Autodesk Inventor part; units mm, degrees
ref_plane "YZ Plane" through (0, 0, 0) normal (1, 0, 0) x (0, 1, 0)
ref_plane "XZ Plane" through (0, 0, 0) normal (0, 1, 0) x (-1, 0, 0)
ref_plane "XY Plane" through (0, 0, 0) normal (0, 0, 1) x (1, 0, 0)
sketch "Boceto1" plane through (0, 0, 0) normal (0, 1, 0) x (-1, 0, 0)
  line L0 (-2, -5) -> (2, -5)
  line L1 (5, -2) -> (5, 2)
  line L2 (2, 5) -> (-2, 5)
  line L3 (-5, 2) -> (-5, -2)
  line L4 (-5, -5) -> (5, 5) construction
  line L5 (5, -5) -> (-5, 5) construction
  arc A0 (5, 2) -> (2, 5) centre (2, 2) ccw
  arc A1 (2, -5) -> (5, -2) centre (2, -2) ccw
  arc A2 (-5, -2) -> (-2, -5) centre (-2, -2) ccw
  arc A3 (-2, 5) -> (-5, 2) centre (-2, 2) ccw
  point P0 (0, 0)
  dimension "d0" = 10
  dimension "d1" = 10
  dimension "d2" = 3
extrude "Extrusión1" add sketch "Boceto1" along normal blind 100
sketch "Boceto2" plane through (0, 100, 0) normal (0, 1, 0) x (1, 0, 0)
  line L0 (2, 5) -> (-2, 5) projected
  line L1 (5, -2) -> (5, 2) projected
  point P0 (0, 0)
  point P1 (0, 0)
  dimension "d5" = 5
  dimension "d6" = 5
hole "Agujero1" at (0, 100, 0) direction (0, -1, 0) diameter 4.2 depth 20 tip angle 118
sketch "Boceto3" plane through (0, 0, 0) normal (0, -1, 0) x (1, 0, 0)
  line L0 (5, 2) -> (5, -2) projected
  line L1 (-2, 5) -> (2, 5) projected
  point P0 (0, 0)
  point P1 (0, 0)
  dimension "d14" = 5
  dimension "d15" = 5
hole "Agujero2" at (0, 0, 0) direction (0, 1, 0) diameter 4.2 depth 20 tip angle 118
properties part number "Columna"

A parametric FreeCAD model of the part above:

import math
import FreeCAD as App
import Part
import Sketcher

V = App.Vector

doc = App.newDocument("Part")
params = doc.addObject("Spreadsheet::Sheet", "Params")
for row, (alias, value) in enumerate([
    ("sketch1_radius", "3 mm"),
    ("sketch1_width", "4 mm"),
    ("pad1_length", "100 mm"),
    ("sketch2_diameter", "4.2 mm"),
    ("hole_diameter", "4.2 mm"),
    ("hole_depth", "20 mm"),
    ("sketch3_diameter", "4.2 mm"),
    ("hole2_diameter", "4.2 mm"),
    ("hole2_depth", "20 mm"),
], start=1):
    params.set(f"A{row}", alias)
    params.set(f"B{row}", "=" + value)
    params.setAlias(f"B{row}", alias)

body = doc.addObject("PartDesign::Body", "Body")

# Sketch on XZ plane
sketch1 = body.newObject("Sketcher::SketchObject", "Sketch")
sketch1.AttachmentSupport = (doc.getObject("XZ_Plane"), [""])
sketch1.MapMode = "FlatFace"
sketch1.addGeometry([
    Part.ArcOfCircle(Part.Circle(V(2, -2, 0), V(0, 0, 1), 3), math.radians(-90), math.radians(0)),  # 0
    Part.LineSegment(V(2, -5, 0), V(-2, -5, 0)),  # 1
    Part.ArcOfCircle(Part.Circle(V(-2, -2, 0), V(0, 0, 1), 3), math.radians(180), math.radians(270)),  # 2
    Part.LineSegment(V(-5, -2, 0), V(-5, 2, 0)),  # 3
    Part.ArcOfCircle(Part.Circle(V(-2, 2, 0), V(0, 0, 1), 3), math.radians(90), math.radians(180)),  # 4
    Part.LineSegment(V(-2, 5, 0), V(2, 5, 0)),  # 5
    Part.ArcOfCircle(Part.Circle(V(2, 2, 0), V(0, 0, 1), 3), math.radians(0), math.radians(90)),  # 6
    Part.LineSegment(V(5, 2, 0), V(5, -2, 0)),  # 7
], False)
sketch1.addConstraint([
    Sketcher.Constraint("Tangent", 0, 1, 1, 1),
    Sketcher.Constraint("Tangent", 1, 2, 2, 2),
    Sketcher.Constraint("Tangent", 2, 1, 3, 1),
    Sketcher.Constraint("Tangent", 3, 2, 4, 2),
    Sketcher.Constraint("Tangent", 4, 1, 5, 1),
    Sketcher.Constraint("Tangent", 5, 2, 6, 2),
    Sketcher.Constraint("Tangent", 6, 1, 7, 1),
    Sketcher.Constraint("Tangent", 7, 2, 0, 2),
    Sketcher.Constraint("Horizontal", 1),
    Sketcher.Constraint("Vertical", 3),
    Sketcher.Constraint("Horizontal", 5),
    Sketcher.Constraint("Vertical", 7),
    Sketcher.Constraint("Equal", 0, 2),
    Sketcher.Constraint("Equal", 2, 4),
    Sketcher.Constraint("Equal", 4, 6),
    Sketcher.Constraint("Symmetric", 0, 3, 4, 3, -1, 1),
    Sketcher.Constraint("Equal", 5, 3),
    Sketcher.Constraint("Radius", 0, 3.0),
    Sketcher.Constraint("DistanceX", 1, 2, 1, 1, 4.0),
])
sketch1.setExpression("Constraints[17]", "Params.sketch1_radius")
sketch1.setExpression("Constraints[18]", "Params.sketch1_width")
pad1 = body.newObject("PartDesign::Pad", "Pad")
pad1.Profile = sketch1
pad1.setExpression("Length", "Params.pad1_length")
pad1.Reversed = True

# Sketch on XZ plane
sketch2 = body.newObject("Sketcher::SketchObject", "Sketch001")
sketch2.AttachmentSupport = (doc.getObject("XZ_Plane"), [""])
sketch2.MapMode = "FlatFace"
sketch2.AttachmentOffset = App.Placement(V(0, 0, -100), App.Rotation())
sketch2.addGeometry(Part.Circle(V(0, 0, 0), V(0, 0, 1), 2.1), False)
sketch2.addConstraint([
    Sketcher.Constraint("Coincident", 0, 3, -1, 1),
    Sketcher.Constraint("Diameter", 0, 4.2),
])
sketch2.setExpression("Constraints[1]", "Params.sketch2_diameter")
doc.recompute()
hole = body.newObject("PartDesign::Hole", "Hole")
hole.Profile = sketch2
hole.ThreadType = "None"
hole.setExpression("Diameter", "Params.hole_diameter")
hole.DepthType = "Dimension"
hole.setExpression("Depth", "Params.hole_depth")
hole.DrillPoint = "Angled"
hole.DrillPointAngle = 118
hole.Reversed = True

# Sketch on XZ plane
sketch3 = body.newObject("Sketcher::SketchObject", "Sketch002")
sketch3.AttachmentSupport = (doc.getObject("XZ_Plane"), [""])
sketch3.MapMode = "FlatFace"
sketch3.addGeometry(Part.Circle(V(0, 0, 0), V(0, 0, 1), 2.1), False)
sketch3.addConstraint([
    Sketcher.Constraint("Coincident", 0, 3, -1, 1),
    Sketcher.Constraint("Diameter", 0, 4.2),
])
sketch3.setExpression("Constraints[1]", "Params.sketch3_diameter")
doc.recompute()
hole2 = body.newObject("PartDesign::Hole", "Hole001")
hole2.Profile = sketch3
hole2.ThreadType = "None"
hole2.setExpression("Diameter", "Params.hole2_diameter")
hole2.DepthType = "Dimension"
hole2.setExpression("Depth", "Params.hole2_depth")
hole2.DrillPoint = "Angled"
hole2.DrillPointAngle = 118

doc.recompute()
